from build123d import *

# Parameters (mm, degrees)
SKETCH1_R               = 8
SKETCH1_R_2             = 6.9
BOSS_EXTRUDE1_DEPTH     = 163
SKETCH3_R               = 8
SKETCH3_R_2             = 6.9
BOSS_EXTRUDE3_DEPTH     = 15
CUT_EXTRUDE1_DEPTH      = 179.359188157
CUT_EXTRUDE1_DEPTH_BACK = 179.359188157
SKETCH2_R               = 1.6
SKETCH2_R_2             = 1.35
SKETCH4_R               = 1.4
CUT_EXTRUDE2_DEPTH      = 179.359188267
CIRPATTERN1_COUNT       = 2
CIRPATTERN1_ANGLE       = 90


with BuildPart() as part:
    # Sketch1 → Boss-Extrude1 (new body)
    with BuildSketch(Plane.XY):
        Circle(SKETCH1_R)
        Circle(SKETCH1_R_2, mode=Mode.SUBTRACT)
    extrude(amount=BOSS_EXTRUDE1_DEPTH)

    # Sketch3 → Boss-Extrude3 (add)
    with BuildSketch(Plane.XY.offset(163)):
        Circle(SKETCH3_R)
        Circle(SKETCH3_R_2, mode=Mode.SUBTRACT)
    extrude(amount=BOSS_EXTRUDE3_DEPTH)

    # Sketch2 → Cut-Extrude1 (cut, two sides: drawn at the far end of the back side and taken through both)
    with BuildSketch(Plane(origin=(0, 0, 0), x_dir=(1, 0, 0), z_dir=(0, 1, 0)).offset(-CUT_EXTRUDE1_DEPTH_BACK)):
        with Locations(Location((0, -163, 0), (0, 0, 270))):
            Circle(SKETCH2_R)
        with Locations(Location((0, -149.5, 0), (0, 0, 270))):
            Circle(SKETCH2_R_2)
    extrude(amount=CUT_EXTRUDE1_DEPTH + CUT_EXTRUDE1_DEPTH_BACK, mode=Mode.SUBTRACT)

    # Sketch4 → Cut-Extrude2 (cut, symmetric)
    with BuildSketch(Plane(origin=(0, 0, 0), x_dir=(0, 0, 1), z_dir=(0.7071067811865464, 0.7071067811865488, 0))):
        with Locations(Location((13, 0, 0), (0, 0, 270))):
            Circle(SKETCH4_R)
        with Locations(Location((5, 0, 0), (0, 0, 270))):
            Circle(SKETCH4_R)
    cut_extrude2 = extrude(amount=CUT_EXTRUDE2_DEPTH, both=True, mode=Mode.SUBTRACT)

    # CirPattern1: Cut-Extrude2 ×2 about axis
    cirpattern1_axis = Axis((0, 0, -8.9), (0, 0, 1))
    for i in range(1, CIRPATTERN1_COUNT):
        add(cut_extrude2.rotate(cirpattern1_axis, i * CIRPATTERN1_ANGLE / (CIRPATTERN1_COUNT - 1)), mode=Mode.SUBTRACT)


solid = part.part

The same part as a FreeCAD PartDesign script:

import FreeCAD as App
import Part
import Sketcher

V = App.Vector
Q = App.Units.Quantity

doc = App.newDocument("Part")
body = doc.addObject("PartDesign::Body", "Body")

sketch1 = body.newObject("Sketcher::SketchObject", "Sketch")
sketch1.AttachmentSupport = (doc.getObject("XY_Plane"), [""])
sketch1.MapMode = "FlatFace"
sketch1.addGeometry(Part.Circle(V(0, 0, 0), V(0, 0, 1), 8), False)
sketch1.addGeometry(Part.Circle(V(0, 0, 0), V(0, 0, 1), 7), False)
sketch1.addConstraint(Sketcher.Constraint("Coincident", 0, 3, -1, 1))
sketch1.addConstraint(Sketcher.Constraint("Coincident", 1, 3, -1, 1))
sketch1.addConstraint(Sketcher.Constraint("Diameter", 0, Q("16 mm")))
sketch1.addConstraint(Sketcher.Constraint("Diameter", 1, Q("13.8 mm")))
pad1 = body.newObject("PartDesign::Pad", "Pad")
pad1.Profile = sketch1
pad1.Length = 163

sketch2 = body.newObject("Sketcher::SketchObject", "Sketch001")
sketch2.AttachmentSupport = (doc.getObject("XY_Plane"), [""])
sketch2.MapMode = "FlatFace"
sketch2.AttachmentOffset = App.Placement(V(0, 0, 163), App.Rotation())
sketch2.addGeometry(Part.Circle(V(0, 0, 0), V(0, 0, 1), 8), False)
sketch2.addGeometry(Part.Circle(V(0, 0, 0), V(0, 0, 1), 7), False)
sketch2.addConstraint(Sketcher.Constraint("Coincident", 0, 3, -1, 1))
sketch2.addConstraint(Sketcher.Constraint("Coincident", 1, 3, -1, 1))
sketch2.addConstraint(Sketcher.Constraint("Diameter", 0, Q("16 mm")))
sketch2.addConstraint(Sketcher.Constraint("Diameter", 1, Q("13.8 mm")))
pad2 = body.newObject("PartDesign::Pad", "Pad001")
pad2.Profile = sketch2
pad2.Length = 15

sketch3 = body.newObject("Sketcher::SketchObject", "Sketch002")
sketch3.AttachmentSupport = (doc.getObject("XZ_Plane"), [""])
sketch3.MapMode = "FlatFace"
sketch3.addGeometry(Part.Circle(V(0, 163, 0), V(0, 0, 1), 1.6), False)
sketch3.addGeometry(Part.Circle(V(0, 149.5, 0), V(0, 0, 1), 1.4), False)
sketch3.addConstraint(Sketcher.Constraint("PointOnObject", 0, 3, -2))
sketch3.addConstraint(Sketcher.Constraint("PointOnObject", 1, 3, -2))
sketch3.addConstraint(Sketcher.Constraint("Diameter", 0, Q("3.2 mm")))
sketch3.addConstraint(Sketcher.Constraint("Diameter", 1, Q("2.7 mm")))
sketch3.addConstraint(Sketcher.Constraint("DistanceY", -1, 1, 0, 3, Q("163 mm")))
sketch3.addConstraint(Sketcher.Constraint("DistanceY", -1, 1, 1, 3, Q("149.5 mm")))
pocket1 = body.newObject("PartDesign::Pocket", "Pocket")
pocket1.Profile = sketch3
pocket1.Type = "ThroughAll"
pocket1.Midplane = True

sketch4 = body.newObject("Sketcher::SketchObject", "Sketch003")
sketch4.Placement = App.Placement(V(0, 0, 0), App.Rotation(V(0, 0, 1), V(0.707106781, -0.707106781, 0), V(0.707106781, 0.707106781, 0), "ZXY"))
sketch4.addGeometry(Part.Circle(V(13, 0, 0), V(0, 0, 1), 1.4), False)
sketch4.addGeometry(Part.Circle(V(5, 0, 0), V(0, 0, 1), 1.4), False)
sketch4.addConstraint(Sketcher.Constraint("Equal", 0, 1))
sketch4.addConstraint(Sketcher.Constraint("PointOnObject", 0, 3, -1))
sketch4.addConstraint(Sketcher.Constraint("PointOnObject", 1, 3, -1))
sketch4.addConstraint(Sketcher.Constraint("Diameter", 0, Q("2.8 mm")))
sketch4.addConstraint(Sketcher.Constraint("DistanceX", -1, 1, 0, 3, Q("13 mm")))
sketch4.addConstraint(Sketcher.Constraint("DistanceX", -1, 1, 1, 3, Q("5 mm")))
pocket2 = body.newObject("PartDesign::Pocket", "Pocket001")
pocket2.Profile = sketch4
pocket2.Length = 358.718377
pocket2.Midplane = True
doc.recompute()

polarpattern = body.newObject("PartDesign::PolarPattern", "PolarPattern")
polarpattern.Originals = [pocket2]
polarpattern.Axis = (doc.getObject("Z_Axis"), [""])
polarpattern.Angle = 90
polarpattern.Occurrences = 2
body.Tip = polarpattern

doc.recompute()
